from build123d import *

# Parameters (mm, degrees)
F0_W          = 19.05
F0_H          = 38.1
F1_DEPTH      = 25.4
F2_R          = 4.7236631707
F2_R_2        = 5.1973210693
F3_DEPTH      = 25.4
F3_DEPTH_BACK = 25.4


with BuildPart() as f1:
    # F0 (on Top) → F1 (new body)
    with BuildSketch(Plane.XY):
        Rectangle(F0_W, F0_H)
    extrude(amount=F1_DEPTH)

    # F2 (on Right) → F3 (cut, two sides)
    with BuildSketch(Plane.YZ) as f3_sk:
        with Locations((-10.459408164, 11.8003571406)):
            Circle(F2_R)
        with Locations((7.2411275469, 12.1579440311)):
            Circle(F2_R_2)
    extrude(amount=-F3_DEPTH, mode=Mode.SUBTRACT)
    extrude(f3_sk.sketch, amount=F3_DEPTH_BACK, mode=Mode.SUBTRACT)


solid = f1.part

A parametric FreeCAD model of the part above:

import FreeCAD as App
import Part
import Sketcher
Q = App.Units.Quantity

doc = App.newDocument("Part")
body = doc.addObject("PartDesign::Body", "Body")

# Sketch on XY plane
sketch1 = body.newObject("Sketcher::SketchObject", "Sketch")
sketch1.AttachmentSupport = (doc.getObject("XY_Plane"), [""])
sketch1.MapMode = "FlatFace"
sketch1.addGeometry(Part.LineSegment(App.Vector(-10, 19, 0), App.Vector(-10, -19, 0)), False)
sketch1.addGeometry(Part.LineSegment(App.Vector(-10, -19, 0), App.Vector(10, -19, 0)), False)
sketch1.addGeometry(Part.LineSegment(App.Vector(10, -19, 0), App.Vector(10, 19, 0)), False)
sketch1.addGeometry(Part.LineSegment(App.Vector(10, 19, 0), App.Vector(-10, 19, 0)), False)
sketch1.addConstraint(Sketcher.Constraint("Coincident", 0, 2, 1, 1))
sketch1.addConstraint(Sketcher.Constraint("Coincident", 1, 2, 2, 1))
sketch1.addConstraint(Sketcher.Constraint("Coincident", 2, 2, 3, 1))
sketch1.addConstraint(Sketcher.Constraint("Coincident", 3, 2, 0, 1))
sketch1.addConstraint(Sketcher.Constraint("Vertical", 0))
sketch1.addConstraint(Sketcher.Constraint("Horizontal", 1))
sketch1.addConstraint(Sketcher.Constraint("Vertical", 2))
sketch1.addConstraint(Sketcher.Constraint("Horizontal", 3))
sketch1.addConstraint(Sketcher.Constraint("Symmetric", 0, 2, 2, 2, -1, 1))
sketch1.addConstraint(Sketcher.Constraint("DistanceY", 0, 2, 0, 1, Q("1.5 in")))
sketch1.addConstraint(Sketcher.Constraint("DistanceX", 1, 1, 1, 2, Q("0.75 in")))
pad1 = body.newObject("PartDesign::Pad", "Pad")
pad1.Profile = sketch1
pad1.Length = Q("1 in")

# Sketch on YZ plane
sketch2 = body.newObject("Sketcher::SketchObject", "Sketch001")
sketch2.AttachmentSupport = (doc.getObject("YZ_Plane"), [""])
sketch2.MapMode = "FlatFace"
sketch2.addGeometry(Part.Circle(App.Vector(-10.5, 11.8, 0), App.Vector(0, 0, 1), 4.7), False)
sketch2.addGeometry(Part.Circle(App.Vector(7.2, 12.2, 0), App.Vector(0, 0, 1), 5.2), False)
sketch2.addConstraint(Sketcher.Constraint("Diameter", 0, 9.447326))
sketch2.addConstraint(Sketcher.Constraint("Diameter", 1, 10.394642))
sketch2.addConstraint(Sketcher.Constraint("DistanceX", 0, 3, -1, 1, 10.459408))
sketch2.addConstraint(Sketcher.Constraint("DistanceY", -1, 1, 0, 3, 11.800357))
sketch2.addConstraint(Sketcher.Constraint("DistanceX", -1, 1, 1, 3, 7.241128))
sketch2.addConstraint(Sketcher.Constraint("DistanceY", -1, 1, 1, 3, 12.157944))
pocket1 = body.newObject("PartDesign::Pocket", "Pocket")
pocket1.Profile = sketch2
pocket1.Type = "ThroughAll"
pocket1.Midplane = True

doc.recompute()
